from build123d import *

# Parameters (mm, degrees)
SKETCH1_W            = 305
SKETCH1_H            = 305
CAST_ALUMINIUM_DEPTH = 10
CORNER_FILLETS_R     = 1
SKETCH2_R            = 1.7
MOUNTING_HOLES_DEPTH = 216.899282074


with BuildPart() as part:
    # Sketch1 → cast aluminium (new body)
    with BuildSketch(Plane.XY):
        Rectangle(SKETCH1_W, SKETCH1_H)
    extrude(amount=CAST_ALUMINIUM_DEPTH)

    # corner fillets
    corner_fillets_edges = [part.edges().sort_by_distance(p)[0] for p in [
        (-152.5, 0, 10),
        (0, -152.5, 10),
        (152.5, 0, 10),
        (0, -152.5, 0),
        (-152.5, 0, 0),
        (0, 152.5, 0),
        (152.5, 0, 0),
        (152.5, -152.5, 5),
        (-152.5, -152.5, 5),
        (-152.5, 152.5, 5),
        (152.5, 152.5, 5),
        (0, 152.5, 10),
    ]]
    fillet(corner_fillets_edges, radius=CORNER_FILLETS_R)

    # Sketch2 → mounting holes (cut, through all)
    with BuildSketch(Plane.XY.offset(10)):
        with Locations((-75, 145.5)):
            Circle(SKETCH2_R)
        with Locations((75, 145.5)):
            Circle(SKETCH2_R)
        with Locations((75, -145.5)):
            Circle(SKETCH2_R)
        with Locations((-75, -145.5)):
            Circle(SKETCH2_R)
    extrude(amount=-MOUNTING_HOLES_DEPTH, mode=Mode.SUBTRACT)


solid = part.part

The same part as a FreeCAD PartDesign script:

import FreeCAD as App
import Part
import Sketcher


def add_polygon(sketch, points):
    """Adds a closed chain of lines whose ends are joined by coincident constraints."""
    first, n = sketch.GeometryCount, len(points)
    for a, b in zip(points, points[1:] + points[:1]):
        sketch.addGeometry(Part.LineSegment(App.Vector(*a, 0), App.Vector(*b, 0)), False)
    for i in range(n):
        sketch.addConstraint(Sketcher.Constraint("Coincident", first + i, 2, first + (i + 1) % n, 1))

doc = App.newDocument("Part")
params = doc.addObject("Spreadsheet::Sheet", "Params")
for row, (alias, value) in enumerate([
    ("sketch1_width", "305 mm"),
    ("pad1_length", "10 mm"),
    ("fillet_radius", "1 mm"),
    ("sketch2_diameter", "3.4 mm"),
], start=1):
    params.set(f"A{row}", alias)
    params.set(f"B{row}", "=" + value)
    params.setAlias(f"B{row}", alias)

body = doc.addObject("PartDesign::Body", "Body")

# Sketch on XY plane
sketch1 = body.newObject("Sketcher::SketchObject", "Sketch")
sketch1.AttachmentSupport = (doc.getObject("XY_Plane"), [""])
sketch1.MapMode = "FlatFace"
add_polygon(sketch1, [(-152.5, 152.5), (-152.5, -152.5), (152.5, -152.5), (152.5, 152.5)])  # lines 0-3
sketch1.addConstraint(Sketcher.Constraint("Vertical", 0))
sketch1.addConstraint(Sketcher.Constraint("Horizontal", 1))
sketch1.addConstraint(Sketcher.Constraint("Vertical", 2))
sketch1.addConstraint(Sketcher.Constraint("Horizontal", 3))
sketch1.addConstraint(Sketcher.Constraint("Symmetric", 0, 2, 2, 2, -1, 1))
sketch1.addConstraint(Sketcher.Constraint("Equal", 3, 0))
sketch1.addConstraint(Sketcher.Constraint("DistanceX", 1, 1, 1, 2, 305.0))
sketch1.setExpression("Constraints[10]", "Params.sketch1_width")
pad1 = body.newObject("PartDesign::Pad", "Pad")
pad1.Profile = sketch1
pad1.setExpression("Length", "Params.pad1_length")
doc.recompute()

fillet = body.newObject("PartDesign::Fillet", "Fillet")
fillet.Base = (pad1, ["Edge1"])
fillet.UseAllEdges = True
fillet.setExpression("Radius", "Params.fillet_radius")

# Sketch on XY plane
sketch2 = body.newObject("Sketcher::SketchObject", "Sketch001")
sketch2.AttachmentSupport = (doc.getObject("XY_Plane"), [""])
sketch2.MapMode = "FlatFace"
sketch2.AttachmentOffset = App.Placement(App.Vector(0, 0, 10), App.Rotation())
sketch2.addGeometry(Part.Circle(App.Vector(-75, 145.5, 0), App.Vector(0, 0, 1), 1.7), False)
sketch2.addGeometry(Part.Circle(App.Vector(75, 145.5, 0), App.Vector(0, 0, 1), 1.7), False)
sketch2.addGeometry(Part.Circle(App.Vector(75, -145.5, 0), App.Vector(0, 0, 1), 1.7), False)
sketch2.addGeometry(Part.Circle(App.Vector(-75, -145.5, 0), App.Vector(0, 0, 1), 1.7), False)
sketch2.addConstraint(Sketcher.Constraint("Equal", 0, 1))
sketch2.addConstraint(Sketcher.Constraint("Equal", 1, 2))
sketch2.addConstraint(Sketcher.Constraint("Equal", 2, 3))
sketch2.addConstraint(Sketcher.Constraint("Symmetric", 0, 3, 2, 3, -1, 1))
sketch2.addConstraint(Sketcher.Constraint("Symmetric", 1, 3, 3, 3, -1, 1))
sketch2.addConstraint(Sketcher.Constraint("Symmetric", 0, 3, 1, 3, -2))
sketch2.addConstraint(Sketcher.Constraint("Diameter", 0, 3.4))
sketch2.addConstraint(Sketcher.Constraint("DistanceX", 0, 3, -1, 1, 75.0))
sketch2.addConstraint(Sketcher.Constraint("DistanceY", 2, 3, 1, 3, 291.0))
sketch2.setExpression("Constraints[6]", "Params.sketch2_diameter")
pocket1 = body.newObject("PartDesign::Pocket", "Pocket")
pocket1.Profile = sketch2
pocket1.Type = "ThroughAll"

doc.recompute()
